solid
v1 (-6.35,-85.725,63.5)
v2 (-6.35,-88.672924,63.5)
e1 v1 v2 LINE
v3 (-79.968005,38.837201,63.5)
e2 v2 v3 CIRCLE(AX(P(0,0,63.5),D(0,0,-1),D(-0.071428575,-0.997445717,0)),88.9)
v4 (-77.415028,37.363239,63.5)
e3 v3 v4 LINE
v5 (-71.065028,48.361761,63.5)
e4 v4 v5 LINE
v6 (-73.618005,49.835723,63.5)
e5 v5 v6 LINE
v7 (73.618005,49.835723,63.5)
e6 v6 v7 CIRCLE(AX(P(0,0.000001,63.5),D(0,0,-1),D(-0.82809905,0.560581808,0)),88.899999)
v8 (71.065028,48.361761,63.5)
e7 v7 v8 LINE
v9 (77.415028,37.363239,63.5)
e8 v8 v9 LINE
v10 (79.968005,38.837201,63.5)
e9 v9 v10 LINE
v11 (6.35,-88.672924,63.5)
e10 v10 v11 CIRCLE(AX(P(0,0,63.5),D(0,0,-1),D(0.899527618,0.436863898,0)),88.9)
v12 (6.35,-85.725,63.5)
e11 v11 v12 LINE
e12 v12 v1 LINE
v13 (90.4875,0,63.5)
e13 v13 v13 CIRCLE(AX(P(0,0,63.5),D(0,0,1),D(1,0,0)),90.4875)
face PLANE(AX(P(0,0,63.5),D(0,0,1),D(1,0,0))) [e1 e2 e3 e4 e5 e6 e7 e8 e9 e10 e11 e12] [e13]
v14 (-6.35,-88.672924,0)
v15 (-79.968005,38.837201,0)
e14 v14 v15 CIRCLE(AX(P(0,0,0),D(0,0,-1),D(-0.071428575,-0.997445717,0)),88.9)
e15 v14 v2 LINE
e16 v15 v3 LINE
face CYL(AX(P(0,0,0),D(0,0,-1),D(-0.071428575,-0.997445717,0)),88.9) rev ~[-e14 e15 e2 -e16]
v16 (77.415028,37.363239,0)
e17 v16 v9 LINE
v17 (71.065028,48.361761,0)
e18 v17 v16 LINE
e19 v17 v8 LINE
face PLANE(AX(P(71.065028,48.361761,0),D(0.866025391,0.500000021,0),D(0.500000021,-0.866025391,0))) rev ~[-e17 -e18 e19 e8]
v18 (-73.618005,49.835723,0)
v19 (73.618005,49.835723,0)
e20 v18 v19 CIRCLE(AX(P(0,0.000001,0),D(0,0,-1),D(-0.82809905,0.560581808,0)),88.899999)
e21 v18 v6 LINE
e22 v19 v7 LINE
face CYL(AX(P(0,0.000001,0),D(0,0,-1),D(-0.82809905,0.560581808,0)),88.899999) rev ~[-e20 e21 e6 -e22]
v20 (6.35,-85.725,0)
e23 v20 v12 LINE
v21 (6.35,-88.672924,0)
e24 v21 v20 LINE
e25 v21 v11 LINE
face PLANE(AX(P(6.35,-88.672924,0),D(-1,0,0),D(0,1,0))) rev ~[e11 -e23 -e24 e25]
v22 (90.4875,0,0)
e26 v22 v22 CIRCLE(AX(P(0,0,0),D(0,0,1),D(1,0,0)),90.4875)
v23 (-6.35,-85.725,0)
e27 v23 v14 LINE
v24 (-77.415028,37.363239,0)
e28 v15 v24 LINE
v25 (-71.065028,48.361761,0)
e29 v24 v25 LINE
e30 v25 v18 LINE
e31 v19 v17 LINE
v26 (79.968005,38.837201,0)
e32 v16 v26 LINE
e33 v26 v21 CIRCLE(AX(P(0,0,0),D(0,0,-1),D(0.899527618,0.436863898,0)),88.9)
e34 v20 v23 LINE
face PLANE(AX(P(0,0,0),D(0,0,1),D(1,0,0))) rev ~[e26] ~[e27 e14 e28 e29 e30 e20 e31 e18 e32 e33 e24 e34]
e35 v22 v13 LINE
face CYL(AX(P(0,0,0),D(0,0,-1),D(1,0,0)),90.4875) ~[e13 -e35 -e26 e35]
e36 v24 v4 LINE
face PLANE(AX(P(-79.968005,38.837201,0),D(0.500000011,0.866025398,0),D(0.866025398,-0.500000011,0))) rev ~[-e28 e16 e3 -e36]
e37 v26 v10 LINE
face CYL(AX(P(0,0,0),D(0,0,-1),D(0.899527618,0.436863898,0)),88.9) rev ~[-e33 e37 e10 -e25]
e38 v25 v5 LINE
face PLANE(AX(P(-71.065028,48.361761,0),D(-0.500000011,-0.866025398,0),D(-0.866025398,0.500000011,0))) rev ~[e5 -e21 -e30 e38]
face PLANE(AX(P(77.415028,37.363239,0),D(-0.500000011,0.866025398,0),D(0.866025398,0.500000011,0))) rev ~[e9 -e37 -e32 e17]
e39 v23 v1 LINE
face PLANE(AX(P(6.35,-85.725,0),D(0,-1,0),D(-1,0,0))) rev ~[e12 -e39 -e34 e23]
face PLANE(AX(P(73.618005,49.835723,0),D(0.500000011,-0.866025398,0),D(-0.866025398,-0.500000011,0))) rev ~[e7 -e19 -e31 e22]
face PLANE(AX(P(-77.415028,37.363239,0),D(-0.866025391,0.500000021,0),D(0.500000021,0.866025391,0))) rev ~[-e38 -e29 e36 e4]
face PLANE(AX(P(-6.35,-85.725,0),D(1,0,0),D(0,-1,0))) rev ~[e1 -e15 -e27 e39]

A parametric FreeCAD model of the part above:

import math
import FreeCAD as App
import Part
import Sketcher

V = App.Vector
Q = App.Units.Quantity

doc = App.newDocument("Part")
body = doc.addObject("PartDesign::Body", "Body")

# Sketch on XY plane
sketch1 = body.newObject("Sketcher::SketchObject", "Sketch")
sketch1.AttachmentSupport = (doc.getObject("XY_Plane"), [""])
sketch1.MapMode = "FlatFace"
sketch1.addGeometry([
    Part.Circle(V(0, 0, 0), V(0, 0, 1), 90.5),  # 0
    Part.LineSegment(V(-6.3, -85.7, 0), V(-6.3, -88.7, 0)),  # 1
    Part.ArcOfCircle(Part.Circle(V(0, 0, 0), V(0, 0, 1), 88.9), math.radians(154), math.radians(266)),  # 2
    Part.LineSegment(V(-80, 38.8, 0), V(-77.4, 37.4, 0)),  # 3
    Part.LineSegment(V(-77.4, 37.4, 0), V(-71.1, 48.4, 0)),  # 4
    Part.LineSegment(V(-71.1, 48.4, 0), V(-73.6, 49.8, 0)),  # 5
    Part.ArcOfCircle(Part.Circle(V(0, 0, 0), V(0, 0, 1), 88.9), math.radians(34), math.radians(146)),  # 6
    Part.LineSegment(V(73.6, 49.8, 0), V(71.1, 48.4, 0)),  # 7
    Part.LineSegment(V(71.1, 48.4, 0), V(77.4, 37.4, 0)),  # 8
    Part.LineSegment(V(77.4, 37.4, 0), V(80, 38.8, 0)),  # 9
    Part.ArcOfCircle(Part.Circle(V(0, 0, 0), V(0, 0, 1), 88.9), math.radians(-86), math.radians(26)),  # 10
    Part.LineSegment(V(6.3, -88.7, 0), V(6.3, -85.7, 0)),  # 11
    Part.LineSegment(V(6.3, -85.7, 0), V(-6.3, -85.7, 0)),  # 12
], False)
sketch1.addConstraint([
    Sketcher.Constraint("Coincident", 1, 2, 2, 2),
    Sketcher.Constraint("Coincident", 2, 1, 3, 1),
    Sketcher.Constraint("Coincident", 3, 2, 4, 1),
    Sketcher.Constraint("Coincident", 4, 2, 5, 1),
    Sketcher.Constraint("Coincident", 5, 2, 6, 2),
    Sketcher.Constraint("Coincident", 6, 1, 7, 1),
    Sketcher.Constraint("Coincident", 7, 2, 8, 1),
    Sketcher.Constraint("Coincident", 8, 2, 9, 1),
    Sketcher.Constraint("Coincident", 9, 2, 10, 2),
    Sketcher.Constraint("Coincident", 10, 1, 11, 1),
    Sketcher.Constraint("Coincident", 11, 2, 12, 1),
    Sketcher.Constraint("Coincident", 12, 2, 1, 1),
    Sketcher.Constraint("Vertical", 1),
    Sketcher.Constraint("Vertical", 11),
    Sketcher.Constraint("Horizontal", 12),
    Sketcher.Constraint("Coincident", 0, 3, -1, 1),
    Sketcher.Constraint("Coincident", 2, 3, -1, 1),
    Sketcher.Constraint("Coincident", 6, 3, -1, 1),
    Sketcher.Constraint("Coincident", 10, 3, -1, 1),
    Sketcher.Constraint("Equal", 2, 6),
    Sketcher.Constraint("Equal", 6, 10),
    Sketcher.Constraint("Symmetric", 4, 2, 7, 2, -2),
    Sketcher.Constraint("Symmetric", 3, 2, 8, 2, -2),
    Sketcher.Constraint("Perpendicular", 3, 4),
    Sketcher.Constraint("Perpendicular", 4, 5),
    Sketcher.Constraint("Perpendicular", 7, 8),
    Sketcher.Constraint("Perpendicular", 8, 9),
    Sketcher.Constraint("Horizontal", 1, 2, 10, 1),
    Sketcher.Constraint("Equal", 3, 5),
    Sketcher.Constraint("Radius", 2, Q("3.5 in")),
    Sketcher.Constraint("Diameter", 0, Q("7.125 in")),
    Sketcher.Constraint("DistanceX", 12, 2, 12, 1, Q("0.5 in")),
    Sketcher.Constraint("Angle", 3, Q("-30.000001 deg")),
    Sketcher.Constraint("Distance", 4, Q("0.5 in")),
    Sketcher.Constraint("DistanceY", 11, 2, -1, 1, Q("3.375 in")),
    Sketcher.Constraint("DistanceX", 3, 2, -1, 1, Q("77.415028 mm")),
])
pad1 = body.newObject("PartDesign::Pad", "Pad")
pad1.Profile = sketch1
pad1.Length = Q("2.5 in")

doc.recompute()
